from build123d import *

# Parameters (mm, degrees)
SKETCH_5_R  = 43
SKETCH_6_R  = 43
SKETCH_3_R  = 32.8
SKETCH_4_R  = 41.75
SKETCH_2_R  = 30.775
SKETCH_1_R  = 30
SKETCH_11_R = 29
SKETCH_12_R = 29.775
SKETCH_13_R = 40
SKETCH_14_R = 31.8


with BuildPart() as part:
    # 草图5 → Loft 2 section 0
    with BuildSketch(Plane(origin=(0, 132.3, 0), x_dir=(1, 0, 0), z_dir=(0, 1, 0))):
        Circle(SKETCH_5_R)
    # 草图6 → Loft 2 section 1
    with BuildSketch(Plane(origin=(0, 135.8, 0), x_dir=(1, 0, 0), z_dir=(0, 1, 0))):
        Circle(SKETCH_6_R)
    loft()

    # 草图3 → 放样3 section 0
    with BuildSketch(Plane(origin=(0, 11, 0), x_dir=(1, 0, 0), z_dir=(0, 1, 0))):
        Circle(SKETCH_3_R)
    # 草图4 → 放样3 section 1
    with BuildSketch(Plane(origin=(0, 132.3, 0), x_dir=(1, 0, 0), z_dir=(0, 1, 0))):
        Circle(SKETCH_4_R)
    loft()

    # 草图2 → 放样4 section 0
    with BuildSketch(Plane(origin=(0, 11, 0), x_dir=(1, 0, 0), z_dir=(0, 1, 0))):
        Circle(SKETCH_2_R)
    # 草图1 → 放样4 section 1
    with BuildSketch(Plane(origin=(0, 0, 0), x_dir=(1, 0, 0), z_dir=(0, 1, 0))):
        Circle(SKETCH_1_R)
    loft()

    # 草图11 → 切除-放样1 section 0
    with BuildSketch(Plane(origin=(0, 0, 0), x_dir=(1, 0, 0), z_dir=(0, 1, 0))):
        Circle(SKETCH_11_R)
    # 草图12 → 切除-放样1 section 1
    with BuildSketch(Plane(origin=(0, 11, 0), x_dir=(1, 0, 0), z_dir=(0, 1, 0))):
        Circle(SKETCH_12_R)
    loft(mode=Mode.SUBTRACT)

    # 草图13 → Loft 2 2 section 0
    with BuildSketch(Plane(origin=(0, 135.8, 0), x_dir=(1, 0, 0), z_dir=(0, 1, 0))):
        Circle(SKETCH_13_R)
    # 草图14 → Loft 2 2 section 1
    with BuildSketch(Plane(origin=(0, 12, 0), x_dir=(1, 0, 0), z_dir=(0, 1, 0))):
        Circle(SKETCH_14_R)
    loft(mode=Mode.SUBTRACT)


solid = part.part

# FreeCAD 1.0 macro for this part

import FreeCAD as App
import Part
import Sketcher
Q = App.Units.Quantity

doc = App.newDocument("Part")
body = doc.addObject("PartDesign::Body", "Body")

# Sketch on XZ plane
sketch1 = body.newObject("Sketcher::SketchObject", "Sketch")
sketch1.AttachmentSupport = (doc.getObject("XZ_Plane"), [""])
sketch1.MapMode = "FlatFace"
sketch1.AttachmentOffset = App.Placement(App.Vector(0, 0, -132.3), App.Rotation())
sketch1.addGeometry(Part.Circle(App.Vector(0, 0, 0), App.Vector(0, 0, 1), 43), False)
sketch1.addConstraint(Sketcher.Constraint("Coincident", 0, 3, -1, 1))
sketch1.addConstraint(Sketcher.Constraint("Diameter", 0, Q("86 mm")))

# Sketch on XZ plane
sketch2 = body.newObject("Sketcher::SketchObject", "Sketch001")
sketch2.AttachmentSupport = (doc.getObject("XZ_Plane"), [""])
sketch2.MapMode = "FlatFace"
sketch2.AttachmentOffset = App.Placement(App.Vector(0, 0, -135.8), App.Rotation())
sketch2.addGeometry(Part.Circle(App.Vector(0, 0, 0), App.Vector(0, 0, 1), 43), False)
sketch2.addConstraint(Sketcher.Constraint("Coincident", 0, 3, -1, 1))
sketch2.addConstraint(Sketcher.Constraint("Diameter", 0, Q("86 mm")))

additiveloft = body.newObject("PartDesign::AdditiveLoft", "AdditiveLoft")
additiveloft.Profile = sketch1
additiveloft.Sections = [sketch2]

# Sketch on XZ plane
sketch3 = body.newObject("Sketcher::SketchObject", "Sketch002")
sketch3.AttachmentSupport = (doc.getObject("XZ_Plane"), [""])
sketch3.MapMode = "FlatFace"
sketch3.AttachmentOffset = App.Placement(App.Vector(0, 0, -11), App.Rotation())
sketch3.addGeometry(Part.Circle(App.Vector(0, 0, 0), App.Vector(0, 0, 1), 33), False)
sketch3.addConstraint(Sketcher.Constraint("Coincident", 0, 3, -1, 1))
sketch3.addConstraint(Sketcher.Constraint("Diameter", 0, Q("65.6 mm")))

# Sketch on XZ plane
sketch4 = body.newObject("Sketcher::SketchObject", "Sketch003")
sketch4.AttachmentSupport = (doc.getObject("XZ_Plane"), [""])
sketch4.MapMode = "FlatFace"
sketch4.AttachmentOffset = App.Placement(App.Vector(0, 0, -132.3), App.Rotation())
sketch4.addGeometry(Part.Circle(App.Vector(0, 0, 0), App.Vector(0, 0, 1), 42), False)
sketch4.addConstraint(Sketcher.Constraint("Coincident", 0, 3, -1, 1))
sketch4.addConstraint(Sketcher.Constraint("Diameter", 0, Q("83.5 mm")))

additiveloft2 = body.newObject("PartDesign::AdditiveLoft", "AdditiveLoft001")
additiveloft2.Profile = sketch3
additiveloft2.Sections = [sketch4]

# Sketch on XZ plane
sketch5 = body.newObject("Sketcher::SketchObject", "Sketch004")
sketch5.AttachmentSupport = (doc.getObject("XZ_Plane"), [""])
sketch5.MapMode = "FlatFace"
sketch5.AttachmentOffset = App.Placement(App.Vector(0, 0, -11), App.Rotation())
sketch5.addGeometry(Part.Circle(App.Vector(0, 0, 0), App.Vector(0, 0, 1), 31), False)
sketch5.addConstraint(Sketcher.Constraint("Coincident", 0, 3, -1, 1))
sketch5.addConstraint(Sketcher.Constraint("Diameter", 0, Q("61.55 mm")))

# Sketch on XZ plane
sketch6 = body.newObject("Sketcher::SketchObject", "Sketch005")
sketch6.AttachmentSupport = (doc.getObject("XZ_Plane"), [""])
sketch6.MapMode = "FlatFace"
sketch6.addGeometry(Part.Circle(App.Vector(0, 0, 0), App.Vector(0, 0, 1), 30), False)
sketch6.addConstraint(Sketcher.Constraint("Coincident", 0, 3, -1, 1))
sketch6.addConstraint(Sketcher.Constraint("Diameter", 0, Q("60 mm")))

additiveloft3 = body.newObject("PartDesign::AdditiveLoft", "AdditiveLoft002")
additiveloft3.Profile = sketch5
additiveloft3.Sections = [sketch6]

# Sketch on XZ plane
sketch7 = body.newObject("Sketcher::SketchObject", "Sketch006")
sketch7.AttachmentSupport = (doc.getObject("XZ_Plane"), [""])
sketch7.MapMode = "FlatFace"
sketch7.addGeometry(Part.Circle(App.Vector(0, 0, 0), App.Vector(0, 0, 1), 29), False)
sketch7.addConstraint(Sketcher.Constraint("Coincident", 0, 3, -1, 1))
sketch7.addConstraint(Sketcher.Constraint("Diameter", 0, Q("58 mm")))

# Sketch on XZ plane
sketch8 = body.newObject("Sketcher::SketchObject", "Sketch007")
sketch8.AttachmentSupport = (doc.getObject("XZ_Plane"), [""])
sketch8.MapMode = "FlatFace"
sketch8.AttachmentOffset = App.Placement(App.Vector(0, 0, -11), App.Rotation())
sketch8.addGeometry(Part.Circle(App.Vector(0, 0, 0), App.Vector(0, 0, 1), 30), False)
sketch8.addConstraint(Sketcher.Constraint("Coincident", 0, 3, -1, 1))
sketch8.addConstraint(Sketcher.Constraint("Diameter", 0, Q("59.55 mm")))

subtractiveloft = body.newObject("PartDesign::SubtractiveLoft", "SubtractiveLoft")
subtractiveloft.Profile = sketch7
subtractiveloft.Sections = [sketch8]

# Sketch on XZ plane
sketch9 = body.newObject("Sketcher::SketchObject", "Sketch008")
sketch9.AttachmentSupport = (doc.getObject("XZ_Plane"), [""])
sketch9.MapMode = "FlatFace"
sketch9.AttachmentOffset = App.Placement(App.Vector(0, 0, -135.8), App.Rotation())
sketch9.addGeometry(Part.Circle(App.Vector(0, 0, 0), App.Vector(0, 0, 1), 40), False)
sketch9.addConstraint(Sketcher.Constraint("Coincident", 0, 3, -1, 1))
sketch9.addConstraint(Sketcher.Constraint("Diameter", 0, Q("80 mm")))

# Sketch on XZ plane
sketch10 = body.newObject("Sketcher::SketchObject", "Sketch009")
sketch10.AttachmentSupport = (doc.getObject("XZ_Plane"), [""])
sketch10.MapMode = "FlatFace"
sketch10.AttachmentOffset = App.Placement(App.Vector(0, 0, -12), App.Rotation())
sketch10.addGeometry(Part.Circle(App.Vector(0, 0, 0), App.Vector(0, 0, 1), 32), False)
sketch10.addConstraint(Sketcher.Constraint("Coincident", 0, 3, -1, 1))
sketch10.addConstraint(Sketcher.Constraint("Diameter", 0, Q("63.6 mm")))

subtractiveloft2 = body.newObject("PartDesign::SubtractiveLoft", "SubtractiveLoft001")
subtractiveloft2.Profile = sketch9
subtractiveloft2.Sections = [sketch10]

doc.recompute()
